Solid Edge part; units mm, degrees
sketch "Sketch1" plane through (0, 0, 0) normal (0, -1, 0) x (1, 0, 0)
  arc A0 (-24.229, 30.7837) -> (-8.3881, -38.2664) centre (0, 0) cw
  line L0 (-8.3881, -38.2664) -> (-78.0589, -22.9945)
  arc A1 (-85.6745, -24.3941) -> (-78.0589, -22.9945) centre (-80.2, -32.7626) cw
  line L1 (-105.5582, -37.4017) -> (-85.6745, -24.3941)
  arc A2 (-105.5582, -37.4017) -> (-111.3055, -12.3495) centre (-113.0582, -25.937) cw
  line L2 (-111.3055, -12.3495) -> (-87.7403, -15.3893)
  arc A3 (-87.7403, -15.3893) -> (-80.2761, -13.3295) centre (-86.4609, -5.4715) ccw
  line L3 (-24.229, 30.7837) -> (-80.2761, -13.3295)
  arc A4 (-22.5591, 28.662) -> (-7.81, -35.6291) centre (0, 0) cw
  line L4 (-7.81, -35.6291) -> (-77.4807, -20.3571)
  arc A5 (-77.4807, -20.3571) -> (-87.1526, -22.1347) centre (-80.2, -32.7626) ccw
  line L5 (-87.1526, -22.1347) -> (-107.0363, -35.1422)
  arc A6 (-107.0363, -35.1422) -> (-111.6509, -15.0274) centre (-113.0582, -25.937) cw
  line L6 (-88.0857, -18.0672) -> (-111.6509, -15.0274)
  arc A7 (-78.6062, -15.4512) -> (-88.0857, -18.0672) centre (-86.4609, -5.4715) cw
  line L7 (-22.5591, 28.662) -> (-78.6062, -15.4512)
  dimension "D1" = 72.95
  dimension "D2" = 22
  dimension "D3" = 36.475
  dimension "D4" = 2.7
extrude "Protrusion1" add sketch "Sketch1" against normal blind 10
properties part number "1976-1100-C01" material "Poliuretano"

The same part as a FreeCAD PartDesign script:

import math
import FreeCAD as App
import Part
import Sketcher
from FreeCAD import Vector
Q = App.Units.Quantity

doc = App.newDocument("Part")
params = doc.addObject("Spreadsheet::Sheet", "Params")
for row, (alias, value) in enumerate([
    ("sketch1_radius", "10 mm"),
    ("sketch1_radius2", "11 mm"),
    ("sketch1_radius3", "13.7 mm"),
    ("sketch1_width", "7.5 mm"),
    ("pad1_length", "10 mm"),
], start=1):
    params.set(f"A{row}", alias)
    params.set(f"B{row}", "=" + value)
    params.setAlias(f"B{row}", alias)

body = doc.addObject("PartDesign::Body", "Body")

# Sketch on XZ plane
sketch1 = body.newObject("Sketcher::SketchObject", "Sketch")
sketch1.AttachmentSupport = (doc.getObject("XZ_Plane"), [""])
sketch1.MapMode = "FlatFace"
sketch1.addGeometry([
    Part.ArcOfCircle(Part.Circle(Vector(0, 0, 0), Vector(0, 0, 1), 39), math.radians(-102), math.radians(128)),  # 0
    Part.LineSegment(Vector(-24, 31, 0), Vector(-80, -13, 0)),  # 1
    Part.ArcOfCircle(Part.Circle(Vector(-86, -5, 0), Vector(0, 0, 1), 10), math.radians(-97), math.radians(-52)),  # 2
    Part.LineSegment(Vector(-88, -15, 0), Vector(-111, -12, 0)),  # 3
    Part.ArcOfCircle(Part.Circle(Vector(-113, -26, 0), Vector(0, 0, 1), 14), math.radians(83), math.radians(303)),  # 4
    Part.LineSegment(Vector(-106, -37, 0), Vector(-86, -24, 0)),  # 5
    Part.ArcOfCircle(Part.Circle(Vector(-80, -33, 0), Vector(0, 0, 1), 10), math.radians(78), math.radians(123)),  # 6
    Part.LineSegment(Vector(-78, -23, 0), Vector(-8, -38, 0)),  # 7
    Part.LineSegment(Vector(-79, -15, 0), Vector(-23, 29, 0)),  # 8
    Part.ArcOfCircle(Part.Circle(Vector(0, 0, 0), Vector(0, 0, 1), 36), math.radians(-102), math.radians(128)),  # 9
    Part.LineSegment(Vector(-8, -36, 0), Vector(-77, -20, 0)),  # 10
    Part.ArcOfCircle(Part.Circle(Vector(-80, -33, 0), Vector(0, 0, 1), 13), math.radians(78), math.radians(123)),  # 11
    Part.LineSegment(Vector(-87, -22, 0), Vector(-107, -35, 0)),  # 12
    Part.ArcOfCircle(Part.Circle(Vector(-113, -26, 0), Vector(0, 0, 1), 11), math.radians(83), math.radians(303)),  # 13
    Part.LineSegment(Vector(-112, -15, 0), Vector(-88, -18, 0)),  # 14
    Part.ArcOfCircle(Part.Circle(Vector(-86, -5, 0), Vector(0, 0, 1), 13), math.radians(-97), math.radians(-52)),  # 15
], False)
sketch1.addConstraint([
    Sketcher.Constraint("Tangent", 0, 2, 1, 1),
    Sketcher.Constraint("Tangent", 1, 2, 2, 2),
    Sketcher.Constraint("Tangent", 2, 1, 3, 1),
    Sketcher.Constraint("Tangent", 3, 2, 4, 1),
    Sketcher.Constraint("Tangent", 4, 2, 5, 1),
    Sketcher.Constraint("Tangent", 5, 2, 6, 2),
    Sketcher.Constraint("Tangent", 6, 1, 7, 1),
    Sketcher.Constraint("Tangent", 7, 2, 0, 1),
    Sketcher.Constraint("Tangent", 8, 2, 9, 2),
    Sketcher.Constraint("Tangent", 9, 1, 10, 1),
    Sketcher.Constraint("Tangent", 10, 2, 11, 1),
    Sketcher.Constraint("Tangent", 11, 2, 12, 1),
    Sketcher.Constraint("Tangent", 12, 2, 13, 2),
    Sketcher.Constraint("Tangent", 13, 1, 14, 1),
    Sketcher.Constraint("Tangent", 14, 2, 15, 1),
    Sketcher.Constraint("Tangent", 15, 2, 8, 1),
    Sketcher.Constraint("Coincident", 0, 3, -1, 1),
    Sketcher.Constraint("Coincident", 9, 3, -1, 1),
    Sketcher.Constraint("Coincident", 11, 3, 6, 3),
    Sketcher.Constraint("Coincident", 13, 3, 4, 3),
    Sketcher.Constraint("Coincident", 15, 3, 2, 3),
    Sketcher.Constraint("Equal", 2, 6),
    Sketcher.Constraint("Equal", 11, 15),
    Sketcher.Constraint("Parallel", 1, 8),
    Sketcher.Constraint("Parallel", 5, 12),
    Sketcher.Constraint("Equal", 3, 5),
    Sketcher.Constraint("Equal", 1, 7),
    Sketcher.Constraint("Radius", 2, 10.0),
    Sketcher.Constraint("Radius", 13, 11.0),
    Sketcher.Constraint("Radius", 4, 13.7),
    Sketcher.Constraint("Radius", 0, 39.175),
    Sketcher.Constraint("DistanceX", 6, 3, -1, 1, 80.2),
    Sketcher.Constraint("Angle", 3, Q("172.6497 deg")),
    Sketcher.Constraint("DistanceX", 4, 3, 4, 2, 7.5),
    Sketcher.Constraint("DistanceY", 7, 2, 0, 2, 69.05),
])
sketch1.setExpression("Constraints[27]", "Params.sketch1_radius")
sketch1.setExpression("Constraints[28]", "Params.sketch1_radius2")
sketch1.setExpression("Constraints[29]", "Params.sketch1_radius3")
sketch1.setExpression("Constraints[33]", "Params.sketch1_width")
pad1 = body.newObject("PartDesign::Pad", "Pad")
pad1.Profile = sketch1
pad1.setExpression("Length", "Params.pad1_length")
pad1.Reversed = True

doc.recompute()
